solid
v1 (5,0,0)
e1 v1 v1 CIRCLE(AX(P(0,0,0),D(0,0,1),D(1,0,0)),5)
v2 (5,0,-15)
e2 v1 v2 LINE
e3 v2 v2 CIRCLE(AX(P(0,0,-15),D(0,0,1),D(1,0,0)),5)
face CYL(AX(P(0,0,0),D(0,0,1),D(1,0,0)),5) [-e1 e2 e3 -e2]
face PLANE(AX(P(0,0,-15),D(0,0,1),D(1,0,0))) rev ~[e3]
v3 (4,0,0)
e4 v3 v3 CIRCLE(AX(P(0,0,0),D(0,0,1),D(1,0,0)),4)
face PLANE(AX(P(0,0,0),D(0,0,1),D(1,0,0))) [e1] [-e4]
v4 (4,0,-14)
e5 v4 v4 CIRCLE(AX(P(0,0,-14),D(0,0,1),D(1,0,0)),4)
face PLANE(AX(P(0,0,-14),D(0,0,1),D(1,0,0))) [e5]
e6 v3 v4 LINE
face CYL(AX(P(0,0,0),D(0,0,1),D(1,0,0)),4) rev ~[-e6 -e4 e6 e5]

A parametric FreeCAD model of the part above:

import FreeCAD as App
import Part
import Sketcher
Q = App.Units.Quantity


def faces_at(feature, points):
    """Names of the faces that lie closest to the given points."""
    faces = feature.Shape.Faces
    near = lambda p: min(range(len(faces)), key=lambda i: faces[i].distToShape(Part.Vertex(*p))[0])
    return sorted({f"Face{near(p) + 1}" for p in points})

doc = App.newDocument("Part")
body = doc.addObject("PartDesign::Body", "Body")

sketch1 = body.newObject("Sketcher::SketchObject", "Sketch")
sketch1.AttachmentSupport = (doc.getObject("XY_Plane"), [""])
sketch1.MapMode = "FlatFace"
sketch1.addGeometry(Part.Circle(App.Vector(0, 0, 0), App.Vector(0, 0, 1), 5), False)
sketch1.addConstraint([
    Sketcher.Constraint("Coincident", 0, 3, -1, 1),
    Sketcher.Constraint("Diameter", 0, Q("10 mm")),
])
pad1 = body.newObject("PartDesign::Pad", "Pad")
pad1.Profile = sketch1
pad1.Length = 15
pad1.Reversed = True
doc.recompute()

thickness = body.newObject("PartDesign::Thickness", "Thickness")
thickness.Base = (pad1, faces_at(pad1, [(0, 0, 0)]))
thickness.Value = 1
thickness.Reversed = True
thickness.Join = "Intersection"

doc.recompute()
